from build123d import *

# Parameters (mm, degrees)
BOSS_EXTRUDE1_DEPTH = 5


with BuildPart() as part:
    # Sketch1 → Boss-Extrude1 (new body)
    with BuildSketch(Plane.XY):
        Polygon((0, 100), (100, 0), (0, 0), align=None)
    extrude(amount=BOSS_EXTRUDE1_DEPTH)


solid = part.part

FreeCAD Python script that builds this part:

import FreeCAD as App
import Part
import Sketcher

V = App.Vector

doc = App.newDocument("Part")
body = doc.addObject("PartDesign::Body", "Body")

sketch1 = body.newObject("Sketcher::SketchObject", "Sketch")
sketch1.AttachmentSupport = (doc.getObject("XY_Plane"), [""])
sketch1.MapMode = "FlatFace"
sketch1.addGeometry(Part.LineSegment(V(100, 0, 0), V(0, 100, 0)), False)
sketch1.addGeometry(Part.LineSegment(V(0, 100, 0), V(0, 0, 0)), False)
sketch1.addGeometry(Part.LineSegment(V(0, 0, 0), V(100, 0, 0)), False)
sketch1.addConstraint(Sketcher.Constraint("Coincident", 0, 2, 1, 1))
sketch1.addConstraint(Sketcher.Constraint("Coincident", 1, 2, 2, 1))
sketch1.addConstraint(Sketcher.Constraint("Coincident", 2, 2, 0, 1))
sketch1.addConstraint(Sketcher.Constraint("Vertical", 1))
sketch1.addConstraint(Sketcher.Constraint("Horizontal", 2))
sketch1.addConstraint(Sketcher.Constraint("Coincident", 1, 2, -1, 1))
sketch1.addConstraint(Sketcher.Constraint("Equal", 2, 1))
sketch1.addConstraint(Sketcher.Constraint("DistanceX", 2, 1, 2, 2, 100.0))
pad1 = body.newObject("PartDesign::Pad", "Pad")
pad1.Profile = sketch1
pad1.Length = 5

doc.recompute()
